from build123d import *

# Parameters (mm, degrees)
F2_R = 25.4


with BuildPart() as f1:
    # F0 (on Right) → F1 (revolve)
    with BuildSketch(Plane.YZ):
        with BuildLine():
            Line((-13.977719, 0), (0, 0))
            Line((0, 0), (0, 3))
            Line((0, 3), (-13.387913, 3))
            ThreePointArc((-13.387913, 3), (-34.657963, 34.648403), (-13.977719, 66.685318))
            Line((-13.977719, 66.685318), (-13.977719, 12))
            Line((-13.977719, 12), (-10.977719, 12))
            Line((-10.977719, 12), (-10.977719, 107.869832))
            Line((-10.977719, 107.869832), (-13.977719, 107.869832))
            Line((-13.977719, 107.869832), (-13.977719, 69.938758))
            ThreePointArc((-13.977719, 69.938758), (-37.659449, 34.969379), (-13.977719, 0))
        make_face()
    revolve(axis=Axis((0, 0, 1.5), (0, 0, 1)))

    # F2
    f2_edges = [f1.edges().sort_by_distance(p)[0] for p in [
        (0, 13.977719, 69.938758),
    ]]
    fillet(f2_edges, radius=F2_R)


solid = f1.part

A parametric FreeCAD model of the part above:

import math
import FreeCAD as App
import Part
import Sketcher


def edges_at(feature, points):
    """Names of the edges that pass closest to the given points."""
    edges = feature.Shape.Edges
    near = lambda p: min(range(len(edges)), key=lambda i: edges[i].distToShape(Part.Vertex(*p))[0])
    return sorted({f"Edge{near(p) + 1}" for p in points})

doc = App.newDocument("Part")
body = doc.addObject("PartDesign::Body", "Body")

# Sketch on YZ plane
sketch1 = body.newObject("Sketcher::SketchObject", "Sketch")
sketch1.AttachmentSupport = (doc.getObject("YZ_Plane"), [""])
sketch1.MapMode = "FlatFace"
sketch1.addGeometry(Part.LineSegment(App.Vector(-14, 0, 0), App.Vector(0, 0, 0)), False)
sketch1.addGeometry(Part.LineSegment(App.Vector(0, 0, 0), App.Vector(0, 3, 0)), False)
sketch1.addGeometry(Part.LineSegment(App.Vector(0, 3, 0), App.Vector(-13.4, 3, 0)), False)
sketch1.addGeometry(Part.ArcOfCircle(Part.Circle(App.Vector(0, 35, 0), App.Vector(0, 0, 1), 34.7), math.radians(114), math.radians(247)), False)
sketch1.addGeometry(Part.LineSegment(App.Vector(-14, 66.7, 0), App.Vector(-14, 12, 0)), False)
sketch1.addGeometry(Part.LineSegment(App.Vector(-14, 12, 0), App.Vector(-11, 12, 0)), False)
sketch1.addGeometry(Part.LineSegment(App.Vector(-11, 12, 0), App.Vector(-11, 107.9, 0)), False)
sketch1.addGeometry(Part.LineSegment(App.Vector(-11, 107.9, 0), App.Vector(-14, 107.9, 0)), False)
sketch1.addGeometry(Part.LineSegment(App.Vector(-14, 107.9, 0), App.Vector(-14, 69.9, 0)), False)
sketch1.addGeometry(Part.ArcOfCircle(Part.Circle(App.Vector(0, 35, 0), App.Vector(0, 0, 1), 37.7), math.radians(112), math.radians(248)), False)
sketch1.addConstraint(Sketcher.Constraint("Coincident", 0, 2, 1, 1))
sketch1.addConstraint(Sketcher.Constraint("Coincident", 1, 2, 2, 1))
sketch1.addConstraint(Sketcher.Constraint("Coincident", 2, 2, 3, 2))
sketch1.addConstraint(Sketcher.Constraint("Coincident", 3, 1, 4, 1))
sketch1.addConstraint(Sketcher.Constraint("Coincident", 4, 2, 5, 1))
sketch1.addConstraint(Sketcher.Constraint("Coincident", 5, 2, 6, 1))
sketch1.addConstraint(Sketcher.Constraint("Coincident", 6, 2, 7, 1))
sketch1.addConstraint(Sketcher.Constraint("Coincident", 7, 2, 8, 1))
sketch1.addConstraint(Sketcher.Constraint("Coincident", 8, 2, 9, 1))
sketch1.addConstraint(Sketcher.Constraint("Coincident", 9, 2, 0, 1))
sketch1.addConstraint(Sketcher.Constraint("Horizontal", 0))
sketch1.addConstraint(Sketcher.Constraint("Vertical", 1))
sketch1.addConstraint(Sketcher.Constraint("Horizontal", 2))
sketch1.addConstraint(Sketcher.Constraint("Vertical", 4))
sketch1.addConstraint(Sketcher.Constraint("Horizontal", 5))
sketch1.addConstraint(Sketcher.Constraint("Vertical", 6))
sketch1.addConstraint(Sketcher.Constraint("Horizontal", 7))
sketch1.addConstraint(Sketcher.Constraint("Vertical", 8))
sketch1.addConstraint(Sketcher.Constraint("Coincident", 0, 2, -1, 1))
sketch1.addConstraint(Sketcher.Constraint("Coincident", 9, 3, 3, 3))
sketch1.addConstraint(Sketcher.Constraint("PointOnObject", 3, 3, -2))
sketch1.addConstraint(Sketcher.Constraint("Vertical", 4, 2, 7, 2))
sketch1.addConstraint(Sketcher.Constraint("Vertical", 8, 2, 9, 2))
sketch1.addConstraint(Sketcher.Constraint("Equal", 7, 1))
sketch1.addConstraint(Sketcher.Constraint("DistanceX", 5, 1, 5, 2, 3.0))
sketch1.addConstraint(Sketcher.Constraint("DistanceY", -1, 1, 4, 2, 12.0))
sketch1.addConstraint(Sketcher.Constraint("Radius", 3, 34.659449))
sketch1.addConstraint(Sketcher.Constraint("Radius", 9, 37.659449))
sketch1.addConstraint(Sketcher.Constraint("DistanceX", 0, 1, 0, 2, 13.977719))
sketch1.addConstraint(Sketcher.Constraint("DistanceY", 6, 1, 6, 2, 95.869832))
revolution = body.newObject("PartDesign::Revolution", "Revolution")
revolution.Profile = sketch1
revolution.ReferenceAxis = (sketch1, ["V_Axis"])
revolution.Angle = 360
doc.recompute()

fillet = body.newObject("PartDesign::Fillet", "Fillet")
fillet.Base = (revolution, edges_at(revolution, [(0, 13.978, 69.939)]))
fillet.Radius = 25.4

doc.recompute()
